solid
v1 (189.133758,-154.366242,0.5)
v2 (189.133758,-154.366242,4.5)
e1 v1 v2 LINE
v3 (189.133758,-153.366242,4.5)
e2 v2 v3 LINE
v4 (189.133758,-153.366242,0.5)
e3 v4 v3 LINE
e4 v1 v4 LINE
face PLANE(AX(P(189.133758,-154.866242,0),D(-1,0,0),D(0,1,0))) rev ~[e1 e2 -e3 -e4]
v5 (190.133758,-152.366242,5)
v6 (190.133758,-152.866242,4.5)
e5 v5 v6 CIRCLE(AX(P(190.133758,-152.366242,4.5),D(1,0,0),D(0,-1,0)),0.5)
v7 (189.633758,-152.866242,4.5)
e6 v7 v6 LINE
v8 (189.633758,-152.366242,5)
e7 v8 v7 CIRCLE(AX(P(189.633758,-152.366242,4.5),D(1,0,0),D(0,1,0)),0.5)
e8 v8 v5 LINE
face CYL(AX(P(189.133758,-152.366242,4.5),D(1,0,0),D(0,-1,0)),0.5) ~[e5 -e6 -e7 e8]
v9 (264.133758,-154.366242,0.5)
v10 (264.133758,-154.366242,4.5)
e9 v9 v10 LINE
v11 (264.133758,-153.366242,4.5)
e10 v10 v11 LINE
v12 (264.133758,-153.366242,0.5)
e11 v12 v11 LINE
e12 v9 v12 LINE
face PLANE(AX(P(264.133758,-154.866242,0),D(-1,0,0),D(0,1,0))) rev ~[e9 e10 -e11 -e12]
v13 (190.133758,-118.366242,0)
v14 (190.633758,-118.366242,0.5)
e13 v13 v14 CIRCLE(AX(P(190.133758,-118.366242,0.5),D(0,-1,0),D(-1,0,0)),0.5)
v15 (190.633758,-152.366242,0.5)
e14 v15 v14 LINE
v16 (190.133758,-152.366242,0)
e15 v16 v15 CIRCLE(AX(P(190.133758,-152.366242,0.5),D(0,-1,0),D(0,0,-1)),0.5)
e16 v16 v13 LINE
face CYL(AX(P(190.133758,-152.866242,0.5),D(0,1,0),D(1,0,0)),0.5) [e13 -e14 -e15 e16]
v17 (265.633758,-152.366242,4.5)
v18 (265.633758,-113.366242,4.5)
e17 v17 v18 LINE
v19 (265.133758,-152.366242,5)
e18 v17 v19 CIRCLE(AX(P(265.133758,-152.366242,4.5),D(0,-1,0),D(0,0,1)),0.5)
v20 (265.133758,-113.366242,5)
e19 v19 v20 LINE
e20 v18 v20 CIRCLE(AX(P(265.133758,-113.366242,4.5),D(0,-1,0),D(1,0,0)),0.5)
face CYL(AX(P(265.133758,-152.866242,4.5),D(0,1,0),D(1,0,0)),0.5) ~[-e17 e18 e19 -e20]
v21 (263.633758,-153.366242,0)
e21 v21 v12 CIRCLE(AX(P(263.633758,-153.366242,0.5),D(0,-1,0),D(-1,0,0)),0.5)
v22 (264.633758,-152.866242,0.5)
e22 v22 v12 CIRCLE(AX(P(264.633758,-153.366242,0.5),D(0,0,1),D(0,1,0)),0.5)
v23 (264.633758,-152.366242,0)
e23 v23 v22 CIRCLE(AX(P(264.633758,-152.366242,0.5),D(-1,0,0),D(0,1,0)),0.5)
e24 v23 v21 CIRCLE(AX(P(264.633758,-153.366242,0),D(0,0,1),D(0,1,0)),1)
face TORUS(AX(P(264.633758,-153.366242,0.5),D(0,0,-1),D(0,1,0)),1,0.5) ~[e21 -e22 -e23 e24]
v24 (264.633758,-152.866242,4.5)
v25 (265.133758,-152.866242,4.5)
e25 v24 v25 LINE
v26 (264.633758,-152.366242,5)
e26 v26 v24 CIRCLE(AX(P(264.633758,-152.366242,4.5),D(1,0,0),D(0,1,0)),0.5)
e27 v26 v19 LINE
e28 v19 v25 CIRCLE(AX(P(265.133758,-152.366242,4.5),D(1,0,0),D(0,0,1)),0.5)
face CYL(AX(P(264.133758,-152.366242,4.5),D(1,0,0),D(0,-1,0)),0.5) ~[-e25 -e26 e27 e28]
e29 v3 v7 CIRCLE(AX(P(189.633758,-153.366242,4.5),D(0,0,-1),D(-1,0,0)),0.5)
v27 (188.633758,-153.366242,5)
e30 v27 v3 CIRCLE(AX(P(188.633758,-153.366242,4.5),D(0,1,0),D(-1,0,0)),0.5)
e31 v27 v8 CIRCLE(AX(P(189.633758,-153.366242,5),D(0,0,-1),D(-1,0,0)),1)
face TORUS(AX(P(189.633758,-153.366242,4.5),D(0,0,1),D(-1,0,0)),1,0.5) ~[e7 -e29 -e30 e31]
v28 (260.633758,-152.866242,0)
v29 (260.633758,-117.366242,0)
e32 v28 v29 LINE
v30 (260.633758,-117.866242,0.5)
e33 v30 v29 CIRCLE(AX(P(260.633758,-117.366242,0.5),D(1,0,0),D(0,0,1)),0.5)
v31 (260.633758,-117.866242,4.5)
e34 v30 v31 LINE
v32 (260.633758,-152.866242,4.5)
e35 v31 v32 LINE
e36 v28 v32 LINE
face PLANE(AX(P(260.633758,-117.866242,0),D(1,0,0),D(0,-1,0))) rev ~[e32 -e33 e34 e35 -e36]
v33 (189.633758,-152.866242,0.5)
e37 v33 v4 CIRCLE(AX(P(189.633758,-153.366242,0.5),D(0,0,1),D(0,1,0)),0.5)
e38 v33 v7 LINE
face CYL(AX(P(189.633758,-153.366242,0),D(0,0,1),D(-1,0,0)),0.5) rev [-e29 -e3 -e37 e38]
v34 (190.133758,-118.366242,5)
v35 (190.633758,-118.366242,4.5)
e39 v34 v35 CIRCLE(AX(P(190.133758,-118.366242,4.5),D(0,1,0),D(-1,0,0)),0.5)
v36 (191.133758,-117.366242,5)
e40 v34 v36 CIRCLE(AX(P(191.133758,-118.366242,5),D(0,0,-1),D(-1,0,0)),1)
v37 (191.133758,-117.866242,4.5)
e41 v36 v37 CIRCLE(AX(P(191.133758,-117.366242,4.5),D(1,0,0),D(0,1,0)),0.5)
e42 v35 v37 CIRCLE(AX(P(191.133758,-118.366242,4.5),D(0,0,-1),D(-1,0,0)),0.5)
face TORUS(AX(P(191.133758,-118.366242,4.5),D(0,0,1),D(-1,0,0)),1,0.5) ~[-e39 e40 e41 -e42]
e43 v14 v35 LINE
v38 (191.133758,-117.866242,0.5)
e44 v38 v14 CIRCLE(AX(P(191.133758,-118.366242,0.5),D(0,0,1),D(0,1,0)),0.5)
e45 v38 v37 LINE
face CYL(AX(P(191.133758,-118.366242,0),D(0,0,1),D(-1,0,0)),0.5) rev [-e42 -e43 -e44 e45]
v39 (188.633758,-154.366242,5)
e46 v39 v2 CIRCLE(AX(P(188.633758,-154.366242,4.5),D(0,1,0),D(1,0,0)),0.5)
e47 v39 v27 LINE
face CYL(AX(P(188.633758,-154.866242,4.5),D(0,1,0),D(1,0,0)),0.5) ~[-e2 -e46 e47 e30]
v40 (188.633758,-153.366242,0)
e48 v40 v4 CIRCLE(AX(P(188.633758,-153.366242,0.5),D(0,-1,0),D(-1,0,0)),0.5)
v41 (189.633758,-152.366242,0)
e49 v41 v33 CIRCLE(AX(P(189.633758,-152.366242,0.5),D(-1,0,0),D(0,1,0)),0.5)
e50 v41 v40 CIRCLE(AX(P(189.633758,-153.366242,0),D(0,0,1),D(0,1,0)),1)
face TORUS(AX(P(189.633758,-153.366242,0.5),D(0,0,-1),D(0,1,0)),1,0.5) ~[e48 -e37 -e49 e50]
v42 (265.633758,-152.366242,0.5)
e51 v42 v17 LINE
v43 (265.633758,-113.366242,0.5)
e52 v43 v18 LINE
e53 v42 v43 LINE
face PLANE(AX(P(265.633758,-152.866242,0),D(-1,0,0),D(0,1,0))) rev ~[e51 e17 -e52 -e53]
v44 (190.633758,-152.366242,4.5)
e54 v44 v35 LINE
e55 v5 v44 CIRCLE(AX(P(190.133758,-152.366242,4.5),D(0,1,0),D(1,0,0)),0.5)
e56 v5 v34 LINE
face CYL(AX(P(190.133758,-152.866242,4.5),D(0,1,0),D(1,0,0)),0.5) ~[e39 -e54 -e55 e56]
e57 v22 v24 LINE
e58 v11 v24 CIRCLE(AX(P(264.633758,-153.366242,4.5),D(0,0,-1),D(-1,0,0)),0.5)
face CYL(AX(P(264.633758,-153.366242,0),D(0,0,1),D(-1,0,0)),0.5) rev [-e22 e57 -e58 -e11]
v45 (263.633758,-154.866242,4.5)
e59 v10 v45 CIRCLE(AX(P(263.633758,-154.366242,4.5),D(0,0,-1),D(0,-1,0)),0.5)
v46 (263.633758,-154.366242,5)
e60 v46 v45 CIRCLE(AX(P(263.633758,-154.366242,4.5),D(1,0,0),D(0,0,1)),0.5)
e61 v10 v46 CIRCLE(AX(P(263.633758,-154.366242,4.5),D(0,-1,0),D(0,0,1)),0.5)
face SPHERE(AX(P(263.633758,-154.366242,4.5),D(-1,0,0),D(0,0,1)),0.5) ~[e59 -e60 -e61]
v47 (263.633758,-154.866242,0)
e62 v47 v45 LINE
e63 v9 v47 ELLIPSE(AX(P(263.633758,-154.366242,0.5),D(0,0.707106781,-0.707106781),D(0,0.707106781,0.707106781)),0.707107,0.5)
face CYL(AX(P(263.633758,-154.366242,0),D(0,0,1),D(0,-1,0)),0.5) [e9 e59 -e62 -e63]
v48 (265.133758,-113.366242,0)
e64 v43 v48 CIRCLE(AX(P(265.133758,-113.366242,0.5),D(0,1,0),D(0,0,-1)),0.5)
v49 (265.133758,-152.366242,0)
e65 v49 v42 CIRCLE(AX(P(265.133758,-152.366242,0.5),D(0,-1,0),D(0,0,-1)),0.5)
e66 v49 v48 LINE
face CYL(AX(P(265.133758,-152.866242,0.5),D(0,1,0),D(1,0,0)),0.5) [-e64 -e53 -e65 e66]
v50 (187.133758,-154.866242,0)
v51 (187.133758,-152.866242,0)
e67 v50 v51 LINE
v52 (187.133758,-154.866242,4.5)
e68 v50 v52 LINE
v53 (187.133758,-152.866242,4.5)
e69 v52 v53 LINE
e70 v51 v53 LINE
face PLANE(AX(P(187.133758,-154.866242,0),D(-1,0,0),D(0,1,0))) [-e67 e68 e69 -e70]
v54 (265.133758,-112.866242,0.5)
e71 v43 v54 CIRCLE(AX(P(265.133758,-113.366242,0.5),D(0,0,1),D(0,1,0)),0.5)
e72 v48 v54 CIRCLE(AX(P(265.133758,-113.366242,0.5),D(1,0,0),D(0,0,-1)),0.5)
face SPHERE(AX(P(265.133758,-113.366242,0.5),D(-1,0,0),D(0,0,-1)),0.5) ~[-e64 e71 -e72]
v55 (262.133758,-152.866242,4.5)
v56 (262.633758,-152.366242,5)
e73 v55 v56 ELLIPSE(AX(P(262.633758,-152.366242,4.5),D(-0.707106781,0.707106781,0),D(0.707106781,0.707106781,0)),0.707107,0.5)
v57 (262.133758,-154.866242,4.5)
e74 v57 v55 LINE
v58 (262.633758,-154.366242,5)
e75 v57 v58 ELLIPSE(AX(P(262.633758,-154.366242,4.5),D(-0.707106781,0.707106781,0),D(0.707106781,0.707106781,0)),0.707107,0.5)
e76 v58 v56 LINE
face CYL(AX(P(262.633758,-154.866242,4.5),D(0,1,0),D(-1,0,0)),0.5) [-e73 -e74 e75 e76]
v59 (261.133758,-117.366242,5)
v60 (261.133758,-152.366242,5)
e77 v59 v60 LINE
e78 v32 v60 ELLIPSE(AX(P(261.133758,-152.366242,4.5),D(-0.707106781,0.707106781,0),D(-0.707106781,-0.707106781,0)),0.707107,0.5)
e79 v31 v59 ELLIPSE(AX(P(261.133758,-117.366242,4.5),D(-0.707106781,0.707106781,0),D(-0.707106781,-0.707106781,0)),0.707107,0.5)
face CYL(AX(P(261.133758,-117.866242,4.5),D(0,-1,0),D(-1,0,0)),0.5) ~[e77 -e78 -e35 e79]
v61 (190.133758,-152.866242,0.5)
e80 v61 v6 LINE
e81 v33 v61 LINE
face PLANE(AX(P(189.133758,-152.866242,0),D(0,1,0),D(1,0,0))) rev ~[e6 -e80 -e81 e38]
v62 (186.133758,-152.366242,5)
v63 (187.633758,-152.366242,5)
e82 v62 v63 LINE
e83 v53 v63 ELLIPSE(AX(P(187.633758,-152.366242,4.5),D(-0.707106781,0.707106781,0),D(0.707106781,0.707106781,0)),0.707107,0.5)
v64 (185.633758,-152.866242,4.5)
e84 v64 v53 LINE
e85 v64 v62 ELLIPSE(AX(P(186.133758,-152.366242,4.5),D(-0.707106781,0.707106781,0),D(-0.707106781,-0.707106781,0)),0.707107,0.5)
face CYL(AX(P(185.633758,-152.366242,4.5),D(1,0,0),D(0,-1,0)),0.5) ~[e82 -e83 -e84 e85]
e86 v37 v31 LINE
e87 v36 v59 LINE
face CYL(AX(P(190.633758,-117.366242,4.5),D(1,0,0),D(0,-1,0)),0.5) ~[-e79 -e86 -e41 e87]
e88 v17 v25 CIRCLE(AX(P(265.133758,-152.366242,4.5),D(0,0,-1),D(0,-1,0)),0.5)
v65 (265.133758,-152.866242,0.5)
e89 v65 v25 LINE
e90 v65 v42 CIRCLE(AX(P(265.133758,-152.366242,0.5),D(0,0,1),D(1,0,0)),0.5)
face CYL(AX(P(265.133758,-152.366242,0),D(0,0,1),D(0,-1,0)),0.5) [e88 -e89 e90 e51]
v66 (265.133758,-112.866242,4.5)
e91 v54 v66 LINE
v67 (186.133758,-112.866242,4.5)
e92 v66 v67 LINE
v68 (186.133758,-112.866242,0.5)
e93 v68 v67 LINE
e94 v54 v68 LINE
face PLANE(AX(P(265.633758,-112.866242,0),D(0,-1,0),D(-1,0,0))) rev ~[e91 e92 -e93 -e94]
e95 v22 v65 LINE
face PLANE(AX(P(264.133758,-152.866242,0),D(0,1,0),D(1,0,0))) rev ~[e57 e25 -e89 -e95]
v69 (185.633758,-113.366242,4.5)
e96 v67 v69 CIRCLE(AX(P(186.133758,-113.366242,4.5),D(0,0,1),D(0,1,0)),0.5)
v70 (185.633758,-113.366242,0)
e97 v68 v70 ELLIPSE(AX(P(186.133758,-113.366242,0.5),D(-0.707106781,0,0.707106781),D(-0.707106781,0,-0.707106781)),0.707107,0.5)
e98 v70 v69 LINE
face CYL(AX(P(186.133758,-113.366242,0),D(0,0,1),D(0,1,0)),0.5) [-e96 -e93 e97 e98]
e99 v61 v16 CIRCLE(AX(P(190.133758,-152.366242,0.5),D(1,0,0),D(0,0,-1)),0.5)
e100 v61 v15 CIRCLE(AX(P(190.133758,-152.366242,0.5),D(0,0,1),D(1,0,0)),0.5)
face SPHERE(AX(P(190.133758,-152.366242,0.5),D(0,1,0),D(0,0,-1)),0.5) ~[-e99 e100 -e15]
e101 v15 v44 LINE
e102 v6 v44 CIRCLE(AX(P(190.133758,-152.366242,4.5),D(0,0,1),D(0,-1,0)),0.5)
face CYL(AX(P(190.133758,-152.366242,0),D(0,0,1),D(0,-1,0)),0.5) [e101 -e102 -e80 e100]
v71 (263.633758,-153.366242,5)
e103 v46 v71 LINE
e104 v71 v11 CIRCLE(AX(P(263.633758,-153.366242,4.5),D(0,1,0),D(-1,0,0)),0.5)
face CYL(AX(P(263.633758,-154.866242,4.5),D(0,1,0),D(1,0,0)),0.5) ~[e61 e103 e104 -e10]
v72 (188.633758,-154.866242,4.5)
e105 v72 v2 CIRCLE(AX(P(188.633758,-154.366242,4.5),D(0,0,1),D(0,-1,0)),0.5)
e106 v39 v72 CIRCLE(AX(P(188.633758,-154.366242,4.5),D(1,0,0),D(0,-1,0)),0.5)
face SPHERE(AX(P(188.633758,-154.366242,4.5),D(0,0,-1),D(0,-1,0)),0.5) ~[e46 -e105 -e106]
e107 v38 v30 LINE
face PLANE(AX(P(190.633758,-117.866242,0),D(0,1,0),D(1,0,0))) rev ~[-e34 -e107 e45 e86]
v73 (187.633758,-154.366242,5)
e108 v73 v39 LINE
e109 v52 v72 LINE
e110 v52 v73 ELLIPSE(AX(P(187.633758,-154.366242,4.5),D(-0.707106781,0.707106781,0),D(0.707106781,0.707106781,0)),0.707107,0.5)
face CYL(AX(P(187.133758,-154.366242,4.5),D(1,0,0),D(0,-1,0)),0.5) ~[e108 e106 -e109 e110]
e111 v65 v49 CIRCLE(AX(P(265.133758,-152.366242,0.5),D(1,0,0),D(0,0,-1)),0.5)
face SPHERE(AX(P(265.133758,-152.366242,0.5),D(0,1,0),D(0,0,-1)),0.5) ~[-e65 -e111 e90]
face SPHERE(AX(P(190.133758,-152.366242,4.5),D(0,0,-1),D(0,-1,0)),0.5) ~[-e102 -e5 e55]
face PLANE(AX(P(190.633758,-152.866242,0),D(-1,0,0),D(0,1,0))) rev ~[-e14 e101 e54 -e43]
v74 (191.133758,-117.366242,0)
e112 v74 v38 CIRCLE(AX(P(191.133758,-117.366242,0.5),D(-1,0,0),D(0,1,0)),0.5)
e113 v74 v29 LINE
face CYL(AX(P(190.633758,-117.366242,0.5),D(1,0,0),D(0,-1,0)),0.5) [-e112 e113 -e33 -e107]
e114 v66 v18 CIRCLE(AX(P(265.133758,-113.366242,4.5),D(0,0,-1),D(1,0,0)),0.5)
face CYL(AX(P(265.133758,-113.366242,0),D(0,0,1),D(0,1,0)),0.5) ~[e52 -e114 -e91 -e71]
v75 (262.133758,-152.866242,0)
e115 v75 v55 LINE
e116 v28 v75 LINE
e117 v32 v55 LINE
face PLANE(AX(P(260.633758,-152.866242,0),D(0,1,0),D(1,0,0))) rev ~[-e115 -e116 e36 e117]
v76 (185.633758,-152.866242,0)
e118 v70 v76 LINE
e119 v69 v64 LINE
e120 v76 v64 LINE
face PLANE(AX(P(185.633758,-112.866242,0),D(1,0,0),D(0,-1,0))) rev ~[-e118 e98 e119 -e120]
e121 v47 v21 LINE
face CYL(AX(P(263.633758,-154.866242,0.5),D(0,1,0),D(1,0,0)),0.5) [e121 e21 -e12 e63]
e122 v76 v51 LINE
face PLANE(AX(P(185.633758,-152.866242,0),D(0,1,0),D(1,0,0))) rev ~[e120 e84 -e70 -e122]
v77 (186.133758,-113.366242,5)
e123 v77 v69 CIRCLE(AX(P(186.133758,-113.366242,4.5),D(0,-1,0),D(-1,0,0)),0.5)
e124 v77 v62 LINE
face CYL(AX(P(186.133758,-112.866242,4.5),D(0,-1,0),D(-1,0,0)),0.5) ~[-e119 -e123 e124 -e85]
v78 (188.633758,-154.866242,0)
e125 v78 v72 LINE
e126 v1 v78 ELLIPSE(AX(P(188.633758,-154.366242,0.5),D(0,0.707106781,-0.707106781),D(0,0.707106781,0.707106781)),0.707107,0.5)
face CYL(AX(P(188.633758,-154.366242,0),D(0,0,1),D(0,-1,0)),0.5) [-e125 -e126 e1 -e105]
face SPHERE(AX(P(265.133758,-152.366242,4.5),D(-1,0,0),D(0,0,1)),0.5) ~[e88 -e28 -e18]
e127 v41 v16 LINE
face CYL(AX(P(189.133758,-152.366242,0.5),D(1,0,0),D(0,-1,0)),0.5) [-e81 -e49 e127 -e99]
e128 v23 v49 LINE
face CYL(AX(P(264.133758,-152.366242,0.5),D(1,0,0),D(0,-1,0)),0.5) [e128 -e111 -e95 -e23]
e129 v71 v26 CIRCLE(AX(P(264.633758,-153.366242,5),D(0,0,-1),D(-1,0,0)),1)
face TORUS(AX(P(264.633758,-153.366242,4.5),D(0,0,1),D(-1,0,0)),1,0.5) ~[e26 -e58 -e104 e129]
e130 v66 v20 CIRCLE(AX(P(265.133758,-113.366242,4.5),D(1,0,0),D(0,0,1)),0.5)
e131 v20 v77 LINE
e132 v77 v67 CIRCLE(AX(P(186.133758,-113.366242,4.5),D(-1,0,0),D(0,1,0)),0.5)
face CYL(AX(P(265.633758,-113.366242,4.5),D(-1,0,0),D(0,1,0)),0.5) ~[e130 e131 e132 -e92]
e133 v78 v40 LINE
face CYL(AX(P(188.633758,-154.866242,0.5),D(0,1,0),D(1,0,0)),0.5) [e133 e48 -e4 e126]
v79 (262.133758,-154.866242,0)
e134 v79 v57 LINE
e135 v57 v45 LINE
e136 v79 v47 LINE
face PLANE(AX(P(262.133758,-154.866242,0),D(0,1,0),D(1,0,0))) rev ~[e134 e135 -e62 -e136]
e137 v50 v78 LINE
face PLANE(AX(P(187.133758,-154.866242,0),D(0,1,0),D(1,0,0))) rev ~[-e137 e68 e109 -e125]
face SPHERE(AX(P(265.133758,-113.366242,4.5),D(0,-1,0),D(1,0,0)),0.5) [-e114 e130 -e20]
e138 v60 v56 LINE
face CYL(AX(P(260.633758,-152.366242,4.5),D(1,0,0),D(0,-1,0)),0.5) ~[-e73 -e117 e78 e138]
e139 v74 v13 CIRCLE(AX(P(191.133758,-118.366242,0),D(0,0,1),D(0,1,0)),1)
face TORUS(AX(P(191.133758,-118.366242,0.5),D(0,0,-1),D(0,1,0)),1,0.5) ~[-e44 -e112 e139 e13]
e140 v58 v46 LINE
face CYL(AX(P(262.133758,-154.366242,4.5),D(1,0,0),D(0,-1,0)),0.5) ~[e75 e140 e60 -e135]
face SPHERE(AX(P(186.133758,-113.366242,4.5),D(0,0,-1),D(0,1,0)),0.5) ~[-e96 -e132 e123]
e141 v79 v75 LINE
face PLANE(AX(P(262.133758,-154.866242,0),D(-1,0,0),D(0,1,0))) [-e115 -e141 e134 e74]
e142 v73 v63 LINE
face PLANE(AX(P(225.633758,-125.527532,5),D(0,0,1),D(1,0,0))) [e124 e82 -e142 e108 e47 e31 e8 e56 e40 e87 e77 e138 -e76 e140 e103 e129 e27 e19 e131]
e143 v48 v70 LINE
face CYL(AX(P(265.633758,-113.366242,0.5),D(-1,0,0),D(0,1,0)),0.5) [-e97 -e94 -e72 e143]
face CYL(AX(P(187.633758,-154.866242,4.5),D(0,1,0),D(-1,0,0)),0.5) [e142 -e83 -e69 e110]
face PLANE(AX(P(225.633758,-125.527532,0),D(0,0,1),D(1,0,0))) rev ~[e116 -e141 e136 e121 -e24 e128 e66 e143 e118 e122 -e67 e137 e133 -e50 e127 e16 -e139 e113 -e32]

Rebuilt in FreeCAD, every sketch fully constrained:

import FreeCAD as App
import Part
import Sketcher
Q = App.Units.Quantity


def edges_at(feature, points):
    """Names of the edges that pass closest to the given points."""
    edges = feature.Shape.Edges
    near = lambda p: min(range(len(edges)), key=lambda i: edges[i].distToShape(Part.Vertex(*p))[0])
    return sorted({f"Edge{near(p) + 1}" for p in points})

doc = App.newDocument("Part")
body = doc.addObject("PartDesign::Body", "Body")

sketch1 = body.newObject("Sketcher::SketchObject", "Sketch")
sketch1.AttachmentSupport = (doc.getObject("XY_Plane"), [""])
sketch1.MapMode = "FlatFace"
sketch1.addGeometry([
    Part.LineSegment(App.Vector(265.6, -112.9, 0), App.Vector(185.6, -112.9, 0)),
    Part.LineSegment(App.Vector(185.6, -112.9, 0), App.Vector(185.6, -152.9, 0)),
    Part.LineSegment(App.Vector(185.6, -152.9, 0), App.Vector(187.1, -152.9, 0)),
    Part.LineSegment(App.Vector(187.1, -152.9, 0), App.Vector(187.1, -154.9, 0)),
    Part.LineSegment(App.Vector(187.1, -154.9, 0), App.Vector(189.1, -154.9, 0)),
    Part.LineSegment(App.Vector(189.1, -154.9, 0), App.Vector(189.1, -152.9, 0)),
    Part.LineSegment(App.Vector(189.1, -152.9, 0), App.Vector(190.6, -152.9, 0)),
    Part.LineSegment(App.Vector(190.6, -152.9, 0), App.Vector(190.6, -117.9, 0)),
    Part.LineSegment(App.Vector(190.6, -117.9, 0), App.Vector(260.6, -117.9, 0)),
    Part.LineSegment(App.Vector(260.6, -117.9, 0), App.Vector(260.6, -152.9, 0)),
    Part.LineSegment(App.Vector(260.6, -152.9, 0), App.Vector(262.1, -152.9, 0)),
    Part.LineSegment(App.Vector(262.1, -152.9, 0), App.Vector(262.1, -154.9, 0)),
    Part.LineSegment(App.Vector(262.1, -154.9, 0), App.Vector(264.1, -154.9, 0)),
    Part.LineSegment(App.Vector(264.1, -154.9, 0), App.Vector(264.1, -152.9, 0)),
    Part.LineSegment(App.Vector(264.1, -152.9, 0), App.Vector(265.6, -152.9, 0)),
    Part.LineSegment(App.Vector(265.6, -152.9, 0), App.Vector(265.6, -112.9, 0)),
], False)
sketch1.addConstraint([
    Sketcher.Constraint("Coincident", 0, 2, 1, 1),
    Sketcher.Constraint("Coincident", 1, 2, 2, 1),
    Sketcher.Constraint("Coincident", 2, 2, 3, 1),
    Sketcher.Constraint("Coincident", 3, 2, 4, 1),
    Sketcher.Constraint("Coincident", 4, 2, 5, 1),
    Sketcher.Constraint("Coincident", 5, 2, 6, 1),
    Sketcher.Constraint("Coincident", 6, 2, 7, 1),
    Sketcher.Constraint("Coincident", 7, 2, 8, 1),
    Sketcher.Constraint("Coincident", 8, 2, 9, 1),
    Sketcher.Constraint("Coincident", 9, 2, 10, 1),
    Sketcher.Constraint("Coincident", 10, 2, 11, 1),
    Sketcher.Constraint("Coincident", 11, 2, 12, 1),
    Sketcher.Constraint("Coincident", 12, 2, 13, 1),
    Sketcher.Constraint("Coincident", 13, 2, 14, 1),
    Sketcher.Constraint("Coincident", 14, 2, 15, 1),
    Sketcher.Constraint("Coincident", 15, 2, 0, 1),
    Sketcher.Constraint("Horizontal", 0),
    Sketcher.Constraint("Vertical", 1),
    Sketcher.Constraint("Horizontal", 2),
    Sketcher.Constraint("Vertical", 3),
    Sketcher.Constraint("Horizontal", 4),
    Sketcher.Constraint("Vertical", 5),
    Sketcher.Constraint("Horizontal", 6),
    Sketcher.Constraint("Vertical", 7),
    Sketcher.Constraint("Horizontal", 8),
    Sketcher.Constraint("Vertical", 9),
    Sketcher.Constraint("Horizontal", 10),
    Sketcher.Constraint("Vertical", 11),
    Sketcher.Constraint("Horizontal", 12),
    Sketcher.Constraint("Vertical", 13),
    Sketcher.Constraint("Horizontal", 14),
    Sketcher.Constraint("Vertical", 15),
    Sketcher.Constraint("Horizontal", 2, 2, 5, 2),
    Sketcher.Constraint("Horizontal", 6, 2, 9, 2),
    Sketcher.Constraint("Horizontal", 4, 2, 11, 2),
    Sketcher.Constraint("Horizontal", 10, 2, 13, 2),
    Sketcher.Constraint("Equal", 2, 6),
    Sketcher.Constraint("Equal", 6, 10),
    Sketcher.Constraint("Equal", 4, 12),
    Sketcher.Constraint("Equal", 10, 14),
    Sketcher.Constraint("Equal", 12, 3),
    Sketcher.Constraint("DistanceX", 0, 2, 0, 1, Q("80 mm")),
    Sketcher.Constraint("DistanceX", 4, 1, 4, 2, Q("2 mm")),
    Sketcher.Constraint("DistanceX", 8, 1, 8, 2, Q("70 mm")),
    Sketcher.Constraint("DistanceY", 1, 2, 1, 1, Q("40 mm")),
    Sketcher.Constraint("DistanceY", 7, 1, 7, 2, Q("35 mm")),
    Sketcher.Constraint("DistanceX", -1, 1, 0, 2, Q("185.633758 mm")),
    Sketcher.Constraint("DistanceY", 0, 2, -1, 1, Q("112.866242 mm")),
])
pad1 = body.newObject("PartDesign::Pad", "Pad")
pad1.Profile = sketch1
pad1.Length = 5
doc.recompute()

fillet = body.newObject("PartDesign::Fillet", "Fillet")
fillet.Base = (pad1, edges_at(pad1, [
    (262.134, -153.866, 5),
    (225.634, -117.866, 0),
    (190.634, -135.366, 0),
    (263.134, -154.866, 5),
    (189.884, -152.866, 0),
    (189.134, -153.866, 0),
    (225.634, -112.866, 0),
    (265.634, -132.866, 0),
    (264.134, -153.866, 5),
    (264.884, -152.866, 0),
    (264.134, -153.866, 0),
    (264.884, -152.866, 5),
    (265.634, -132.866, 5),
    (190.634, -117.866, 2.5),
    (190.634, -152.866, 2.5),
    (189.134, -152.866, 2.5),
    (189.134, -154.866, 2.5),
    (185.634, -112.866, 2.5),
    (265.634, -112.866, 2.5),
    (265.634, -152.866, 2.5),
    (264.134, -152.866, 2.5),
    (264.134, -154.866, 2.5),
    (225.634, -112.866, 5),
    (185.634, -132.866, 5),
    (260.634, -135.366, 5),
    (186.384, -152.866, 5),
    (187.134, -153.866, 5),
    (188.134, -154.866, 5),
    (189.134, -153.866, 5),
    (189.884, -152.866, 5),
    (190.634, -135.366, 5),
    (225.634, -117.866, 5),
    (261.384, -152.866, 5),
]))
fillet.Radius = 0.5

doc.recompute()
